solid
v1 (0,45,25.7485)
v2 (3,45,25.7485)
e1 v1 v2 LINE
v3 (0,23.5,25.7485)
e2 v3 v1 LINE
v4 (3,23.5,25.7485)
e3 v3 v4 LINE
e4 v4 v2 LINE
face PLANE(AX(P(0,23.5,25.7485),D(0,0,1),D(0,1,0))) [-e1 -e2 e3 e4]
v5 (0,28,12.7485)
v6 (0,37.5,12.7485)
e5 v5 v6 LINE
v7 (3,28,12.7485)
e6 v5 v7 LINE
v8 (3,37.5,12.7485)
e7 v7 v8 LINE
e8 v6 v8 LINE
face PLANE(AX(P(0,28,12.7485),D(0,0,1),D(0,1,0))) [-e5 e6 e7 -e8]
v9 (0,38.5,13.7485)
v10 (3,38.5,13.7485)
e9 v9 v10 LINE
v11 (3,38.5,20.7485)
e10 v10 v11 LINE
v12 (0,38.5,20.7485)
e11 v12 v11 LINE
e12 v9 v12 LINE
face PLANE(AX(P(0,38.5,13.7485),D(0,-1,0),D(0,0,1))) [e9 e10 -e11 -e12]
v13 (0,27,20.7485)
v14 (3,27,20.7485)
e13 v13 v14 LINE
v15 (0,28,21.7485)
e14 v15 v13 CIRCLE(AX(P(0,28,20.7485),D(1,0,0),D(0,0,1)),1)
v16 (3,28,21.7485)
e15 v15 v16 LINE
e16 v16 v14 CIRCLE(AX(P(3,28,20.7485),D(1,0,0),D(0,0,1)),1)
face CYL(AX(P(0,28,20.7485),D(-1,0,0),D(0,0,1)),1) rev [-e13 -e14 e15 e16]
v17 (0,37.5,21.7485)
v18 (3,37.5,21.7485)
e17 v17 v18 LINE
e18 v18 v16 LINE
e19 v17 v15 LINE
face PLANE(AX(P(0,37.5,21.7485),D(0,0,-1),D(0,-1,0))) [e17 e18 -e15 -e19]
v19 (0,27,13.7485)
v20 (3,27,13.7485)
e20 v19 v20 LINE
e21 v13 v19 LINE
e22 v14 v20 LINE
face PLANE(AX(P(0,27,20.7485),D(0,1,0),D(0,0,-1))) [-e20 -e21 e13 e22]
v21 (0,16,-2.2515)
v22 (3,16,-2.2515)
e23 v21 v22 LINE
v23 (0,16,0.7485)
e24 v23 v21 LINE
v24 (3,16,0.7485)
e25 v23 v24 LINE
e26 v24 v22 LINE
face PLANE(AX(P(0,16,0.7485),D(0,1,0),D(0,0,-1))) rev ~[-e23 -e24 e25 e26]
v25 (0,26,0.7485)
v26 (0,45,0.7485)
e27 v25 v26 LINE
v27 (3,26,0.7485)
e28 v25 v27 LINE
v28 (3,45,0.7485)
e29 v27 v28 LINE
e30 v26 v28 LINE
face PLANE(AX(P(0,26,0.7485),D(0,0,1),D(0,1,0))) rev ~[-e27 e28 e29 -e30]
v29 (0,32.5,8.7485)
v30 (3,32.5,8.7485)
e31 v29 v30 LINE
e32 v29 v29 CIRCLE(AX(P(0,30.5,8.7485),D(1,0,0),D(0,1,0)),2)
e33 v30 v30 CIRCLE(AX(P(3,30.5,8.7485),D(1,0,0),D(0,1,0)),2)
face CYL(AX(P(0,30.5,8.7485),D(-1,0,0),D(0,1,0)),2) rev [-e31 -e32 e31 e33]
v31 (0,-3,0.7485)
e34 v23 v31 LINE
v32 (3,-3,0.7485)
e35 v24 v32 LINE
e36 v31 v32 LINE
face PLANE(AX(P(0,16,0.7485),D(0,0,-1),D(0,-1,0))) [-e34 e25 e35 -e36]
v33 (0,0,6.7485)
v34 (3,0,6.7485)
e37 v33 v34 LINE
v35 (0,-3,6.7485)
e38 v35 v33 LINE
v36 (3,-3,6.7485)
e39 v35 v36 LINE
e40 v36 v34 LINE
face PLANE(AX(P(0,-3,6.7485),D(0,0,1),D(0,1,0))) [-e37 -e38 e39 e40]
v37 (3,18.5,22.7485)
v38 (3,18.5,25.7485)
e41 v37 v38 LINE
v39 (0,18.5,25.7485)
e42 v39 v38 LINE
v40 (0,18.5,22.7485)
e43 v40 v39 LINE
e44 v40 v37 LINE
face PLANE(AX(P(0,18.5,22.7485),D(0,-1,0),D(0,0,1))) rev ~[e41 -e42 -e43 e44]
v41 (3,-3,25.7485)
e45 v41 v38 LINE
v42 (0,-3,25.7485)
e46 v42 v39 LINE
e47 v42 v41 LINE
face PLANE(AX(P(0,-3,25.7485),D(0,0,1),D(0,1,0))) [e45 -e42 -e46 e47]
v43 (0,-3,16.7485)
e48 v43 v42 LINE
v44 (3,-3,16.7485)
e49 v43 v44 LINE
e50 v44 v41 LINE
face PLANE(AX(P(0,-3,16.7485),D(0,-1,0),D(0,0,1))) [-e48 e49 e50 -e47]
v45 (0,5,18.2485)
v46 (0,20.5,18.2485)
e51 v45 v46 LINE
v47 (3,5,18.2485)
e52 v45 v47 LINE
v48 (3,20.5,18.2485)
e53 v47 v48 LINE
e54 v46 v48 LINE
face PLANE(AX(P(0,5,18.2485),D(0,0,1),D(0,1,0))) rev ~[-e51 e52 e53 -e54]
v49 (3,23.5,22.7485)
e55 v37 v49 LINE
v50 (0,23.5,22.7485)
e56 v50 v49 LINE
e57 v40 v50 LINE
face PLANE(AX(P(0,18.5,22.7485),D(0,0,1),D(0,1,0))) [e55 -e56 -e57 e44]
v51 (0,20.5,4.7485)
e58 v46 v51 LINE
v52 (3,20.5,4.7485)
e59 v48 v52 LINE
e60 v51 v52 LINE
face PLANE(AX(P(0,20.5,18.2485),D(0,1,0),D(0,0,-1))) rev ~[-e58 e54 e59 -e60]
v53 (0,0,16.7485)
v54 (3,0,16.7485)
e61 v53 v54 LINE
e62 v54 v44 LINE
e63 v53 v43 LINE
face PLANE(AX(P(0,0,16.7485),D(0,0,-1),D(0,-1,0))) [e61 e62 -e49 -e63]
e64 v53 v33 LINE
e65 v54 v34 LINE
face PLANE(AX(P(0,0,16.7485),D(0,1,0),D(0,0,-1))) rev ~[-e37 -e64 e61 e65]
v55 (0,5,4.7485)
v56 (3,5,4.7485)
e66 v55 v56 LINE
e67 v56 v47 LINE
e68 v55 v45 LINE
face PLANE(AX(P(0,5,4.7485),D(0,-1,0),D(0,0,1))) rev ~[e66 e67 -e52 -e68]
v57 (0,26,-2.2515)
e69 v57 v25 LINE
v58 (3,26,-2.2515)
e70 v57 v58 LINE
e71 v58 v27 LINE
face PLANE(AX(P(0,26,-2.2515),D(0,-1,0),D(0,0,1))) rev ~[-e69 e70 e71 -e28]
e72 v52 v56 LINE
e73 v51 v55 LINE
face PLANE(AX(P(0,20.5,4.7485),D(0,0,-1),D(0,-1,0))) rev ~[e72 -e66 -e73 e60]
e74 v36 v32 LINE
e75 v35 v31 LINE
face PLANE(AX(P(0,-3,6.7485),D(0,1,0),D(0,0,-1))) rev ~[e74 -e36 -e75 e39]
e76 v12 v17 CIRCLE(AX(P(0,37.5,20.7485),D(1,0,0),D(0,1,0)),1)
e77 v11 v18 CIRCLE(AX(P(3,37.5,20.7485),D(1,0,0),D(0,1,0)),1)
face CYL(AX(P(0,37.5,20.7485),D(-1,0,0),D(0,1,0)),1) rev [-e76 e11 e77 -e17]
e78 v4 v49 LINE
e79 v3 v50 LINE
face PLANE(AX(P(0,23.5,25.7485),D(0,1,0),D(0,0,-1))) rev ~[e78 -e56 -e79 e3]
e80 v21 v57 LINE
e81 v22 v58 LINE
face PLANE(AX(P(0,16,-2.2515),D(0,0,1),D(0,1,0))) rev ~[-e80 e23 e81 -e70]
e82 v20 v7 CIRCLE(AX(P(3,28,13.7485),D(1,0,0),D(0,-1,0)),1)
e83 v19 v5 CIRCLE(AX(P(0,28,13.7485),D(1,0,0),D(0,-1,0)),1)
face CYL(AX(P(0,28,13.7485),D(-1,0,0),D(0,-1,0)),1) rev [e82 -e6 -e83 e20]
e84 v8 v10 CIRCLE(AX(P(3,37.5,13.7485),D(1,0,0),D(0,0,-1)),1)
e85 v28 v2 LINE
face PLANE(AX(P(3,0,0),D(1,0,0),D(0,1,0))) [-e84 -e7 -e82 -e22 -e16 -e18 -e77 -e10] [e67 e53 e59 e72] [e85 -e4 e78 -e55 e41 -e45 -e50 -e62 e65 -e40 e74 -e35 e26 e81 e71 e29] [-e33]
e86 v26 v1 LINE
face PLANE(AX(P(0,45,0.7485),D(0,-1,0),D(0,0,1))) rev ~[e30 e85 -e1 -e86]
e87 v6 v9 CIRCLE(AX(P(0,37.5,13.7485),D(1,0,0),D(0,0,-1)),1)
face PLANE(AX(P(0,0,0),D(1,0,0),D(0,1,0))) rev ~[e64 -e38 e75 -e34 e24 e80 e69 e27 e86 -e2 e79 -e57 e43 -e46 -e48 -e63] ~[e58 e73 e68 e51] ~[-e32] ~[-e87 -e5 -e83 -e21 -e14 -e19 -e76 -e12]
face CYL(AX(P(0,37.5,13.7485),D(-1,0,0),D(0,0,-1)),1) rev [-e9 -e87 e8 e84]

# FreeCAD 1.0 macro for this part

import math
import FreeCAD as App
import Part
import Sketcher

doc = App.newDocument("Part")
body = doc.addObject("PartDesign::Body", "Body")

# Sketch on YZ plane
sketch1 = doc.addObject("Sketcher::SketchObject", "Sketch")
body.addObject(sketch1)
sketch1.AttachmentSupport = (doc.YZ_Plane, [""])
sketch1.MapMode = "FlatFace"
sketch1.addGeometry(Part.LineSegment(App.Vector(23.5, 22.7, 0), App.Vector(18.5, 22.7, 0)), False)
sketch1.addGeometry(Part.LineSegment(App.Vector(18.5, 22.7, 0), App.Vector(18.5, 25.7, 0)), False)
sketch1.addGeometry(Part.LineSegment(App.Vector(18.5, 25.7, 0), App.Vector(-3, 25.7, 0)), False)
sketch1.addGeometry(Part.LineSegment(App.Vector(-3, 25.7, 0), App.Vector(-3, 16.7, 0)), False)
sketch1.addGeometry(Part.LineSegment(App.Vector(-3, 16.7, 0), App.Vector(0, 16.7, 0)), False)
sketch1.addGeometry(Part.LineSegment(App.Vector(0, 16.7, 0), App.Vector(0, 6.7, 0)), False)
sketch1.addGeometry(Part.LineSegment(App.Vector(0, 6.7, 0), App.Vector(-3, 6.7, 0)), False)
sketch1.addGeometry(Part.LineSegment(App.Vector(-3, 6.7, 0), App.Vector(-3, 0.7, 0)), False)
sketch1.addGeometry(Part.LineSegment(App.Vector(-3, 0.7, 0), App.Vector(16, 0.7, 0)), False)
sketch1.addGeometry(Part.LineSegment(App.Vector(16, 0.7, 0), App.Vector(16, -2.3, 0)), False)
sketch1.addGeometry(Part.LineSegment(App.Vector(16, -2.3, 0), App.Vector(26, -2.3, 0)), False)
sketch1.addGeometry(Part.LineSegment(App.Vector(26, -2.3, 0), App.Vector(26, 0.7, 0)), False)
sketch1.addGeometry(Part.LineSegment(App.Vector(26, 0.7, 0), App.Vector(45, 0.7, 0)), False)
sketch1.addGeometry(Part.LineSegment(App.Vector(45, 0.7, 0), App.Vector(45, 25.7, 0)), False)
sketch1.addGeometry(Part.LineSegment(App.Vector(45, 25.7, 0), App.Vector(23.5, 25.7, 0)), False)
sketch1.addGeometry(Part.LineSegment(App.Vector(23.5, 25.7, 0), App.Vector(23.5, 22.7, 0)), False)
sketch1.addGeometry(Part.LineSegment(App.Vector(20.5, 4.7, 0), App.Vector(5, 4.7, 0)), False)
sketch1.addGeometry(Part.LineSegment(App.Vector(5, 4.7, 0), App.Vector(5, 18.2, 0)), False)
sketch1.addGeometry(Part.LineSegment(App.Vector(5, 18.2, 0), App.Vector(20.5, 18.2, 0)), False)
sketch1.addGeometry(Part.LineSegment(App.Vector(20.5, 18.2, 0), App.Vector(20.5, 4.7, 0)), False)
sketch1.addGeometry(Part.Circle(App.Vector(30.5, 8.7, 0), App.Vector(0, 0, 1), 2), False)
sketch1.addGeometry(Part.LineSegment(App.Vector(27, 13.7, 0), App.Vector(27, 20.7, 0)), False)
sketch1.addGeometry(Part.ArcOfCircle(Part.Circle(App.Vector(28, 20.7, 0), App.Vector(0, 0, 1), 1), math.radians(90), math.radians(180)), False)
sketch1.addGeometry(Part.LineSegment(App.Vector(28, 21.7, 0), App.Vector(37.5, 21.7, 0)), False)
sketch1.addGeometry(Part.ArcOfCircle(Part.Circle(App.Vector(37.5, 20.7, 0), App.Vector(0, 0, 1), 1), math.radians(0), math.radians(90)), False)
sketch1.addGeometry(Part.LineSegment(App.Vector(38.5, 20.7, 0), App.Vector(38.5, 13.7, 0)), False)
sketch1.addGeometry(Part.ArcOfCircle(Part.Circle(App.Vector(37.5, 13.7, 0), App.Vector(0, 0, 1), 1), math.radians(-90), math.radians(0)), False)
sketch1.addGeometry(Part.LineSegment(App.Vector(37.5, 12.7, 0), App.Vector(28, 12.7, 0)), False)
sketch1.addGeometry(Part.ArcOfCircle(Part.Circle(App.Vector(28, 13.7, 0), App.Vector(0, 0, 1), 1), math.radians(180), math.radians(270)), False)
sketch1.addConstraint(Sketcher.Constraint("Coincident", 0, 2, 1, 1))
sketch1.addConstraint(Sketcher.Constraint("Coincident", 1, 2, 2, 1))
sketch1.addConstraint(Sketcher.Constraint("Coincident", 2, 2, 3, 1))
sketch1.addConstraint(Sketcher.Constraint("Coincident", 3, 2, 4, 1))
sketch1.addConstraint(Sketcher.Constraint("Coincident", 4, 2, 5, 1))
sketch1.addConstraint(Sketcher.Constraint("Coincident", 5, 2, 6, 1))
sketch1.addConstraint(Sketcher.Constraint("Coincident", 6, 2, 7, 1))
sketch1.addConstraint(Sketcher.Constraint("Coincident", 7, 2, 8, 1))
sketch1.addConstraint(Sketcher.Constraint("Coincident", 8, 2, 9, 1))
sketch1.addConstraint(Sketcher.Constraint("Coincident", 9, 2, 10, 1))
sketch1.addConstraint(Sketcher.Constraint("Coincident", 10, 2, 11, 1))
sketch1.addConstraint(Sketcher.Constraint("Coincident", 11, 2, 12, 1))
sketch1.addConstraint(Sketcher.Constraint("Coincident", 12, 2, 13, 1))
sketch1.addConstraint(Sketcher.Constraint("Coincident", 13, 2, 14, 1))
sketch1.addConstraint(Sketcher.Constraint("Coincident", 14, 2, 15, 1))
sketch1.addConstraint(Sketcher.Constraint("Coincident", 15, 2, 0, 1))
sketch1.addConstraint(Sketcher.Constraint("Coincident", 16, 2, 17, 1))
sketch1.addConstraint(Sketcher.Constraint("Coincident", 17, 2, 18, 1))
sketch1.addConstraint(Sketcher.Constraint("Coincident", 18, 2, 19, 1))
sketch1.addConstraint(Sketcher.Constraint("Coincident", 19, 2, 16, 1))
sketch1.addConstraint(Sketcher.Constraint("Tangent", 21, 2, 22, 2))
sketch1.addConstraint(Sketcher.Constraint("Tangent", 22, 1, 23, 1))
sketch1.addConstraint(Sketcher.Constraint("Tangent", 23, 2, 24, 2))
sketch1.addConstraint(Sketcher.Constraint("Tangent", 24, 1, 25, 1))
sketch1.addConstraint(Sketcher.Constraint("Tangent", 25, 2, 26, 2))
sketch1.addConstraint(Sketcher.Constraint("Tangent", 26, 1, 27, 1))
sketch1.addConstraint(Sketcher.Constraint("Tangent", 27, 2, 28, 2))
sketch1.addConstraint(Sketcher.Constraint("Tangent", 28, 1, 21, 1))
sketch1.addConstraint(Sketcher.Constraint("Horizontal", 0))
sketch1.addConstraint(Sketcher.Constraint("Vertical", 1))
sketch1.addConstraint(Sketcher.Constraint("Horizontal", 2))
sketch1.addConstraint(Sketcher.Constraint("Vertical", 3))
sketch1.addConstraint(Sketcher.Constraint("Horizontal", 4))
sketch1.addConstraint(Sketcher.Constraint("Vertical", 5))
sketch1.addConstraint(Sketcher.Constraint("Horizontal", 6))
sketch1.addConstraint(Sketcher.Constraint("Vertical", 7))
sketch1.addConstraint(Sketcher.Constraint("Horizontal", 8))
sketch1.addConstraint(Sketcher.Constraint("Vertical", 9))
sketch1.addConstraint(Sketcher.Constraint("Horizontal", 10))
sketch1.addConstraint(Sketcher.Constraint("Vertical", 11))
sketch1.addConstraint(Sketcher.Constraint("Horizontal", 12))
sketch1.addConstraint(Sketcher.Constraint("Vertical", 13))
sketch1.addConstraint(Sketcher.Constraint("Horizontal", 14))
sketch1.addConstraint(Sketcher.Constraint("Vertical", 15))
sketch1.addConstraint(Sketcher.Constraint("Horizontal", 16))
sketch1.addConstraint(Sketcher.Constraint("Vertical", 17))
sketch1.addConstraint(Sketcher.Constraint("Horizontal", 18))
sketch1.addConstraint(Sketcher.Constraint("Vertical", 19))
sketch1.addConstraint(Sketcher.Constraint("Vertical", 21))
sketch1.addConstraint(Sketcher.Constraint("Horizontal", 23))
sketch1.addConstraint(Sketcher.Constraint("Vertical", 25))
sketch1.addConstraint(Sketcher.Constraint("Horizontal", 27))
sketch1.addConstraint(Sketcher.Constraint("Equal", 22, 24))
sketch1.addConstraint(Sketcher.Constraint("Equal", 24, 26))
sketch1.addConstraint(Sketcher.Constraint("Equal", 26, 28))
sketch1.addConstraint(Sketcher.Constraint("PointOnObject", 4, 2, -2))
sketch1.addConstraint(Sketcher.Constraint("Horizontal", 8, 2, 11, 2))
sketch1.addConstraint(Sketcher.Constraint("Horizontal", 2, 2, 13, 2))
sketch1.addConstraint(Sketcher.Constraint("Vertical", 3, 2, 6, 2))
sketch1.addConstraint(Sketcher.Constraint("Equal", 8, 12))
sketch1.addConstraint(Sketcher.Constraint("Equal", 2, 14))
sketch1.addConstraint(Sketcher.Constraint("Equal", 6, 1))
sketch1.addConstraint(Sketcher.Constraint("Equal", 10, 5))
sketch1.addConstraint(Sketcher.Constraint("Equal", 1, 9))
sketch1.addConstraint(Sketcher.Constraint("Diameter", 20, 4.0))
sketch1.addConstraint(Sketcher.Constraint("Radius", 22, 1.0))
sketch1.addConstraint(Sketcher.Constraint("DistanceX", 0, 2, 0, 1, 5.0))
sketch1.addConstraint(Sketcher.Constraint("DistanceX", 4, 1, 4, 2, 3.0))
sketch1.addConstraint(Sketcher.Constraint("DistanceX", 8, 1, 8, 2, 19.0))
sketch1.addConstraint(Sketcher.Constraint("DistanceX", 10, 1, 10, 2, 10.0))
sketch1.addConstraint(Sketcher.Constraint("DistanceY", 3, 2, 3, 1, 9.0))
sketch1.addConstraint(Sketcher.Constraint("DistanceY", 13, 1, 13, 2, 25.0))
sketch1.addConstraint(Sketcher.Constraint("DistanceX", 16, 2, 16, 1, 15.5))
sketch1.addConstraint(Sketcher.Constraint("DistanceY", 17, 1, 17, 2, 13.5))
sketch1.addConstraint(Sketcher.Constraint("DistanceX", -1, 1, 16, 2, 5.0))
sketch1.addConstraint(Sketcher.Constraint("DistanceY", 20, 3, 26, 3, 5.0))
sketch1.addConstraint(Sketcher.Constraint("DistanceY", 28, 3, 0, 2, 9.0))
sketch1.addConstraint(Sketcher.Constraint("DistanceX", 0, 2, 24, 3, 19.0))
sketch1.addConstraint(Sketcher.Constraint("DistanceY", 22, 3, 1, 2, 5.0))
sketch1.addConstraint(Sketcher.Constraint("DistanceY", 7, 2, 16, 2, 4.0))
sketch1.addConstraint(Sketcher.Constraint("DistanceX", 19, 2, 20, 3, 10.0))
sketch1.addConstraint(Sketcher.Constraint("DistanceX", 18, 2, 21, 2, 6.5))
sketch1.addConstraint(Sketcher.Constraint("DistanceY", -1, 1, 20, 3, 8.7485))
pad1 = doc.addObject("PartDesign::Pad", "Pad")
body.addObject(pad1)
pad1.Profile = sketch1
pad1.Length = 3

doc.recompute()
